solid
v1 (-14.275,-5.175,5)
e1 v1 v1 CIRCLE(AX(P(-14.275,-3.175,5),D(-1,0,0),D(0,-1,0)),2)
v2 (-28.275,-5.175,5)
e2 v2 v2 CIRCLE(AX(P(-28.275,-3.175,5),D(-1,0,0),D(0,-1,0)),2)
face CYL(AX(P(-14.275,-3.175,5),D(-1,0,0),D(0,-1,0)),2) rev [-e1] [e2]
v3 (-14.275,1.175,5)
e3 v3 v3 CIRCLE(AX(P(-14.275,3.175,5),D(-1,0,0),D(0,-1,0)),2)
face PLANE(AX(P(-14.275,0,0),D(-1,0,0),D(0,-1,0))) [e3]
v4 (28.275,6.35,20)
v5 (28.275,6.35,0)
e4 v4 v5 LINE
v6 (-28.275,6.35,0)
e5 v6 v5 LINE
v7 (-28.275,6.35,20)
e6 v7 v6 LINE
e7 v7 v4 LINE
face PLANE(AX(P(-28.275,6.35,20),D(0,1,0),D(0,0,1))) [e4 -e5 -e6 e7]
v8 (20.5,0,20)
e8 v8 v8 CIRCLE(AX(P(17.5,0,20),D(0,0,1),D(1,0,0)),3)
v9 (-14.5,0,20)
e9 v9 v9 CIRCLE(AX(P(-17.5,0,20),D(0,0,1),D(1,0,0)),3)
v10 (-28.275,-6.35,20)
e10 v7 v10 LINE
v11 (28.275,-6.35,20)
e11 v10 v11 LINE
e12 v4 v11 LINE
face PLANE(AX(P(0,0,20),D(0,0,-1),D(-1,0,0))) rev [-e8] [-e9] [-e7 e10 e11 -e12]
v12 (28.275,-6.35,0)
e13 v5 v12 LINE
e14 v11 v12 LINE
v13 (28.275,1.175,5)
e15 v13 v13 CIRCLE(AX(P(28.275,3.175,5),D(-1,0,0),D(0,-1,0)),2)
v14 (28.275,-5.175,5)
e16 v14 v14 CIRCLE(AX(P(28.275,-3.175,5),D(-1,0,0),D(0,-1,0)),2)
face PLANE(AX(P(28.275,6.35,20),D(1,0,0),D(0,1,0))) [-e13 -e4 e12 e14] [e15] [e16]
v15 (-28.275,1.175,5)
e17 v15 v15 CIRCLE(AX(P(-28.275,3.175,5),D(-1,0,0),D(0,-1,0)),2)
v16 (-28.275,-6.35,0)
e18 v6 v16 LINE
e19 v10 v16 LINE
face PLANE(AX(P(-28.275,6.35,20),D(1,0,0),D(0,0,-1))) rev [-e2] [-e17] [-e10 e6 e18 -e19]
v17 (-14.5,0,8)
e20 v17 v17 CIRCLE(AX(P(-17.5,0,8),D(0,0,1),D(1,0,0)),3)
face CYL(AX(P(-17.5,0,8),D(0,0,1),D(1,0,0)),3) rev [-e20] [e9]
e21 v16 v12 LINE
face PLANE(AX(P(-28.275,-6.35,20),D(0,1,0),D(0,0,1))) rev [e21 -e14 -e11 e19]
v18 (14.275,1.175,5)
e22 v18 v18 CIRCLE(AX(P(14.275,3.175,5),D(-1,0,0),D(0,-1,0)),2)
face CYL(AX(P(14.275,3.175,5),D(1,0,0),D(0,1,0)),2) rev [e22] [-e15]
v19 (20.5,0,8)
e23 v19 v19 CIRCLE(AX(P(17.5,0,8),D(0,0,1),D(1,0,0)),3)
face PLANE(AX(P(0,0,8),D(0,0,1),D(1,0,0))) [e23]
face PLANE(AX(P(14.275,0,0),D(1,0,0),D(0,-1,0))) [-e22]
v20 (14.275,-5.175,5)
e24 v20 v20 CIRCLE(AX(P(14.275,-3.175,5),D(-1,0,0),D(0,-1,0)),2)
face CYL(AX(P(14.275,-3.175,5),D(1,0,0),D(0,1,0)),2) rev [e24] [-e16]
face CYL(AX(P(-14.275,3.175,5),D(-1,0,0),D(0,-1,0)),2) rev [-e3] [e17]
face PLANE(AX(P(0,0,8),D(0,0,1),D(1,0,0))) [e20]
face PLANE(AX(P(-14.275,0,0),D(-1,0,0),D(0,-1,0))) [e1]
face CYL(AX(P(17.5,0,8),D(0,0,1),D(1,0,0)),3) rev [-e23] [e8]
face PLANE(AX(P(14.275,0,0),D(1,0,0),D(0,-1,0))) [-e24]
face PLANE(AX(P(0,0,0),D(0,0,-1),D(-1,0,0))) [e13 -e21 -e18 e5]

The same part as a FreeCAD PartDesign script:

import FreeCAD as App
import Part
import Sketcher

V = App.Vector
Q = App.Units.Quantity

doc = App.newDocument("Part")
body = doc.addObject("PartDesign::Body", "Body")

sketch1 = body.newObject("Sketcher::SketchObject", "Sketch")
sketch1.AttachmentSupport = (doc.getObject("XY_Plane"), [""])
sketch1.MapMode = "FlatFace"
sketch1.addGeometry([
    Part.LineSegment(V(-28, 6, 0), V(-28, -6, 0)),
    Part.LineSegment(V(-28, -6, 0), V(28, -6, 0)),
    Part.LineSegment(V(28, -6, 0), V(28, 6, 0)),
    Part.LineSegment(V(28, 6, 0), V(-28, 6, 0)),
], False)
sketch1.addConstraint([
    Sketcher.Constraint("Coincident", 0, 2, 1, 1),
    Sketcher.Constraint("Coincident", 1, 2, 2, 1),
    Sketcher.Constraint("Coincident", 2, 2, 3, 1),
    Sketcher.Constraint("Coincident", 3, 2, 0, 1),
    Sketcher.Constraint("Vertical", 0),
    Sketcher.Constraint("Horizontal", 1),
    Sketcher.Constraint("Vertical", 2),
    Sketcher.Constraint("Horizontal", 3),
    Sketcher.Constraint("Symmetric", 0, 2, 2, 2, -1, 1),
    Sketcher.Constraint("DistanceY", 0, 2, 0, 1, Q("12.7 mm")),
    Sketcher.Constraint("DistanceX", 1, 1, 1, 2, Q("56.55 mm")),
])
pad1 = body.newObject("PartDesign::Pad", "Pad")
pad1.Profile = sketch1
pad1.Length = 20

sketch2 = body.newObject("Sketcher::SketchObject", "Sketch001")
sketch2.AttachmentSupport = (doc.getObject("XY_Plane"), [""])
sketch2.MapMode = "FlatFace"
sketch2.AttachmentOffset = App.Placement(V(0, 0, 20), App.Rotation())
sketch2.addGeometry([
    Part.Circle(V(-17.5, 0, 0), V(0, 0, 1), 3),
    Part.Circle(V(17.5, 0, 0), V(0, 0, 1), 3),
], False)
sketch2.addConstraint([
    Sketcher.Constraint("Equal", 0, 1),
    Sketcher.Constraint("Symmetric", 0, 3, 1, 3, -1, 1),
    Sketcher.Constraint("PointOnObject", 0, 3, -1),
    Sketcher.Constraint("Diameter", 0, Q("6 mm")),
    Sketcher.Constraint("DistanceX", 0, 3, 1, 3, Q("35 mm")),
])
pocket1 = body.newObject("PartDesign::Pocket", "Pocket")
pocket1.Profile = sketch2
pocket1.Length = 12

sketch3 = body.newObject("Sketcher::SketchObject", "Sketch002")
sketch3.AttachmentSupport = (doc.getObject("YZ_Plane"), [""])
sketch3.MapMode = "FlatFace"
sketch3.AttachmentOffset = App.Placement(V(0, 0, -28.275), App.Rotation())
sketch3.addGeometry([
    Part.Circle(V(3.2, 5, 0), V(0, 0, 1), 2),
    Part.Circle(V(-3.2, 5, 0), V(0, 0, 1), 2),
], False)
sketch3.addConstraint([
    Sketcher.Constraint("Equal", 0, 1),
    Sketcher.Constraint("Symmetric", 0, 3, 1, 3, -2),
    Sketcher.Constraint("Diameter", 0, Q("4 mm")),
    Sketcher.Constraint("DistanceY", -1, 1, 0, 3, Q("5 mm")),
    Sketcher.Constraint("DistanceX", 1, 3, 0, 3, Q("6.35 mm")),
])
pocket2 = body.newObject("PartDesign::Pocket", "Pocket001")
pocket2.Profile = sketch3
pocket2.Length = 14
pocket2.Reversed = True
doc.recompute()

mirrored = body.newObject("PartDesign::Mirrored", "Mirrored")
mirrored.Originals = [pocket2]
mirrored.MirrorPlane = (doc.getObject("YZ_Plane"), [""])
body.Tip = mirrored

doc.recompute()
